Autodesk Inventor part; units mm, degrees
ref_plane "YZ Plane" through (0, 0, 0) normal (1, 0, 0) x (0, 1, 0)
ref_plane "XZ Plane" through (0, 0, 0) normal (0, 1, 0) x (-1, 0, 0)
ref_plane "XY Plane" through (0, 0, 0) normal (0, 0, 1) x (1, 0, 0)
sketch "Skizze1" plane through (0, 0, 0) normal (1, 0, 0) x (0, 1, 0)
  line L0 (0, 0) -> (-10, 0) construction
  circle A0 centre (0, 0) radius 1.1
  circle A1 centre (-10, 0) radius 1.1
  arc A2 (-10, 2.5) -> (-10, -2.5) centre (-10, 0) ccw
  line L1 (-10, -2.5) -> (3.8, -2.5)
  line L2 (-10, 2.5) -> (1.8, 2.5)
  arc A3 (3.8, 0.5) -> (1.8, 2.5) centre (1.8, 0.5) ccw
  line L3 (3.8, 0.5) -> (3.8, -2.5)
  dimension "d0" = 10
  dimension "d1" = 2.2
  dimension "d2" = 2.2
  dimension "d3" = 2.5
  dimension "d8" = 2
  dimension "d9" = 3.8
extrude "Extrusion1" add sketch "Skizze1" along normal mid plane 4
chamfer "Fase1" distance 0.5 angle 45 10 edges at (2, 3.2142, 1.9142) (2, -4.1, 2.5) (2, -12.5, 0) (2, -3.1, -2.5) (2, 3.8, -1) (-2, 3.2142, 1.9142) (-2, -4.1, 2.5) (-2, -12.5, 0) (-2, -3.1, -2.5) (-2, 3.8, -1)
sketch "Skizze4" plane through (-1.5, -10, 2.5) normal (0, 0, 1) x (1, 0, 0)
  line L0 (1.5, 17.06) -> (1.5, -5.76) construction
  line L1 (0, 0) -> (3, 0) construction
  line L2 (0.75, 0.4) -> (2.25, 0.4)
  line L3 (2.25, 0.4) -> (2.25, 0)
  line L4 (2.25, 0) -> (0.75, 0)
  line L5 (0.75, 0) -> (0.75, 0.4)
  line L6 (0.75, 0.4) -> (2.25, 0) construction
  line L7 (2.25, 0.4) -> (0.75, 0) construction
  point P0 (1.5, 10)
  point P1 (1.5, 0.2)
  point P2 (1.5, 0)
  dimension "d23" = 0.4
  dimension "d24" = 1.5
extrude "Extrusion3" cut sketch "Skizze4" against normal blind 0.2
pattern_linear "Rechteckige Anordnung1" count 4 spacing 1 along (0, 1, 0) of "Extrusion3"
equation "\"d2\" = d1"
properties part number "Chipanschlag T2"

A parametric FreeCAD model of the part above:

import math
import FreeCAD as App
import Part
import Sketcher

V = App.Vector


def edges_at(feature, points):
    """Names of the edges that pass closest to the given points."""
    edges = feature.Shape.Edges
    near = lambda p: min(range(len(edges)), key=lambda i: edges[i].distToShape(Part.Vertex(*p))[0])
    return sorted({f"Edge{near(p) + 1}" for p in points})


def add_polygon(sketch, points):
    """Adds a closed chain of lines whose ends are joined by coincident constraints."""
    first, n = sketch.GeometryCount, len(points)
    for a, b in zip(points, points[1:] + points[:1]):
        sketch.addGeometry(Part.LineSegment(App.Vector(*a, 0), App.Vector(*b, 0)), False)
    for i in range(n):
        sketch.addConstraint(Sketcher.Constraint("Coincident", first + i, 2, first + (i + 1) % n, 1))

doc = App.newDocument("Part")
body = doc.addObject("PartDesign::Body", "Body")

# Sketch on YZ plane
sketch1 = body.newObject("Sketcher::SketchObject", "Sketch")
sketch1.AttachmentSupport = (doc.getObject("YZ_Plane"), [""])
sketch1.MapMode = "FlatFace"
sketch1.addGeometry([
    Part.LineSegment(V(1.8, 2.5, 0), V(-10, 2.5, 0)),  # 0
    Part.ArcOfCircle(Part.Circle(V(-10, 0, 0), V(0, 0, 1), 2.5), math.radians(90), math.radians(270)),  # 1
    Part.LineSegment(V(-10, -2.5, 0), V(3.8, -2.5, 0)),  # 2
    Part.LineSegment(V(3.8, -2.5, 0), V(3.8, 0.5, 0)),  # 3
    Part.ArcOfCircle(Part.Circle(V(1.8, 0.5, 0), V(0, 0, 1), 2), math.radians(0), math.radians(90)),  # 4
    Part.Circle(V(-10, 0, 0), V(0, 0, 1), 1.1),  # 5
    Part.Circle(V(0, 0, 0), V(0, 0, 1), 1.1),  # 6
], False)
sketch1.addConstraint([
    Sketcher.Constraint("Tangent", 0, 2, 1, 1),
    Sketcher.Constraint("Tangent", 1, 2, 2, 1),
    Sketcher.Constraint("Coincident", 2, 2, 3, 1),
    Sketcher.Constraint("Tangent", 3, 2, 4, 1),
    Sketcher.Constraint("Tangent", 4, 2, 0, 1),
    Sketcher.Constraint("Horizontal", 0),
    Sketcher.Constraint("Horizontal", 2),
    Sketcher.Constraint("Vertical", 3),
    Sketcher.Constraint("Coincident", 6, 3, -1, 1),
    Sketcher.Constraint("Coincident", 5, 3, 1, 3),
    Sketcher.Constraint("Equal", 5, 6),
    Sketcher.Constraint("PointOnObject", 1, 3, -1),
    Sketcher.Constraint("Radius", 4, 2.0),
    Sketcher.Constraint("Diameter", 5, 2.2),
    Sketcher.Constraint("Radius", 1, 2.5),
    Sketcher.Constraint("DistanceX", 1, 3, -1, 1, 10.0),
    Sketcher.Constraint("DistanceX", -1, 1, 2, 2, 3.8),
])
pad1 = body.newObject("PartDesign::Pad", "Pad")
pad1.Profile = sketch1
pad1.Length = 4
pad1.Midplane = True
doc.recompute()

chamfer = body.newObject("PartDesign::Chamfer", "Chamfer")
chamfer.Base = (pad1, edges_at(pad1, [
    (2, 3.214, 1.914),
    (2, -4.1, 2.5),
    (2, -12.5, 0),
    (2, -3.1, -2.5),
    (2, 3.8, -1),
    (-2, 3.214, 1.914),
    (-2, -4.1, 2.5),
    (-2, -12.5, 0),
    (-2, -3.1, -2.5),
    (-2, 3.8, -1),
]))
chamfer.Size = 0.5

# Sketch on XY plane
sketch2 = body.newObject("Sketcher::SketchObject", "Sketch001")
sketch2.AttachmentSupport = (doc.getObject("XY_Plane"), [""])
sketch2.MapMode = "FlatFace"
sketch2.AttachmentOffset = App.Placement(V(0, 0, 2.5), App.Rotation())
add_polygon(sketch2, [(0.75, -9.6), (-0.75, -9.6), (-0.75, -10), (0.75, -10)])  # lines 0-3
sketch2.addConstraint([
    Sketcher.Constraint("Horizontal", 0),
    Sketcher.Constraint("Vertical", 1),
    Sketcher.Constraint("Horizontal", 2),
    Sketcher.Constraint("Vertical", 3),
    Sketcher.Constraint("DistanceX", 0, 2, 0, 1, 1.5),
    Sketcher.Constraint("DistanceY", 1, 2, 1, 1, 0.4),
    Sketcher.Constraint("DistanceY", 1, 2, -1, 1, 10.0),
    Sketcher.Constraint("DistanceX", 0, 2, -1, 1, 0.75),
])
pocket1 = body.newObject("PartDesign::Pocket", "Pocket")
pocket1.Profile = sketch2
pocket1.Length = 0.2
doc.recompute()

linearpattern = body.newObject("PartDesign::LinearPattern", "LinearPattern")
linearpattern.Originals = [pocket1]
linearpattern.Direction = (doc.getObject("Y_Axis"), [""])
linearpattern.Mode = "offset"
linearpattern.Offset = 1
linearpattern.Occurrences = 4
body.Tip = linearpattern

doc.recompute()
